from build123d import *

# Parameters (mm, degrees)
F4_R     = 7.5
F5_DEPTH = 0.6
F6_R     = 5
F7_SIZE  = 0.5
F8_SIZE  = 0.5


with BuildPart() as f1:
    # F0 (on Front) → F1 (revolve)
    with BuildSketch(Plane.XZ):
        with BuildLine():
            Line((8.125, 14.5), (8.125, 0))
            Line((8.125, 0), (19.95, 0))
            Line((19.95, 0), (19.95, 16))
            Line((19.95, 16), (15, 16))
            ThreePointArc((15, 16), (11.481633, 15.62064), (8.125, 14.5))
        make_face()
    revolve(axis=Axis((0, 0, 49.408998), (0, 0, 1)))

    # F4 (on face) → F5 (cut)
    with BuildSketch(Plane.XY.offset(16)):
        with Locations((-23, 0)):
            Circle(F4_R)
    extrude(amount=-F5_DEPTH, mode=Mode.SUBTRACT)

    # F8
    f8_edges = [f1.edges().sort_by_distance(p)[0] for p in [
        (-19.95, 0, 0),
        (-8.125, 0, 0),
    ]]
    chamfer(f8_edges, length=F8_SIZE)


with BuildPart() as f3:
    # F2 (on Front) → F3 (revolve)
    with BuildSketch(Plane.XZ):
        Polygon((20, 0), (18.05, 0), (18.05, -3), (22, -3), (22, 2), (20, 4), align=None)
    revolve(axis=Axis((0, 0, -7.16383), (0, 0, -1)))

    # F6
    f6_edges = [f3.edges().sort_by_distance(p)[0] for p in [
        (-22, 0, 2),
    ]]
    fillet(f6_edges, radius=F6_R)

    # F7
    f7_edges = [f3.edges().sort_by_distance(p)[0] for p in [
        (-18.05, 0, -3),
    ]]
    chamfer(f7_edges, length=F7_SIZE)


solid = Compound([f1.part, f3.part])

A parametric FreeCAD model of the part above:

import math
import FreeCAD as App
import Part
import Sketcher

V = App.Vector
Q = App.Units.Quantity


def edges_at(feature, points):
    """Names of the edges that pass closest to the given points."""
    edges = feature.Shape.Edges
    near = lambda p: min(range(len(edges)), key=lambda i: edges[i].distToShape(Part.Vertex(*p))[0])
    return sorted({f"Edge{near(p) + 1}" for p in points})


def add_polygon(sketch, points):
    """Adds a closed chain of lines whose ends are joined by coincident constraints."""
    first, n = sketch.GeometryCount, len(points)
    for a, b in zip(points, points[1:] + points[:1]):
        sketch.addGeometry(Part.LineSegment(App.Vector(*a, 0), App.Vector(*b, 0)), False)
    for i in range(n):
        sketch.addConstraint(Sketcher.Constraint("Coincident", first + i, 2, first + (i + 1) % n, 1))

doc = App.newDocument("Part")
params = doc.addObject("Spreadsheet::Sheet", "Params")
for row, (alias, value) in enumerate([
    ("sketch1_height", "16 mm"),
    ("sketch1_height2", "14.5 mm"),
    ("sketch1_width", "4.95 mm"),
    ("revolution_angle", "360 deg"),
    ("sketch2_diameter", "15 mm"),
    ("pocket1_length", "0.6 mm"),
    ("chamfer_size", "0.5 mm"),
    ("sketch3_height", "3 mm"),
    ("sketch3_height2", "5 mm"),
    ("sketch3_height3", "4 mm"),
    ("sketch3_width", "1.95 mm"),
    ("revolution2_angle", "360 deg"),
    ("fillet_radius", "5 mm"),
    ("chamfer2_size", "0.5 mm"),
], start=1):
    params.set(f"A{row}", alias)
    params.set(f"B{row}", "=" + value)
    params.setAlias(f"B{row}", alias)

body = doc.addObject("PartDesign::Body", "Body")

# Sketch on XZ plane
sketch1 = body.newObject("Sketcher::SketchObject", "Sketch")
sketch1.AttachmentSupport = (doc.getObject("XZ_Plane"), [""])
sketch1.MapMode = "FlatFace"
sketch1.addGeometry([
    Part.LineSegment(V(8.1, 14.5, 0), V(8.1, 0, 0)),  # 0
    Part.LineSegment(V(8.1, 0, 0), V(19.9, 0, 0)),  # 1
    Part.LineSegment(V(19.9, 0, 0), V(19.9, 16, 0)),  # 2
    Part.LineSegment(V(19.9, 16, 0), V(15, 16, 0)),  # 3
    Part.ArcOfCircle(Part.Circle(V(15, -0.5, 0), V(0, 0, 1), 16.5), math.radians(90), math.radians(115)),  # 4
], False)
sketch1.addConstraint([
    Sketcher.Constraint("Coincident", 0, 2, 1, 1),
    Sketcher.Constraint("Coincident", 1, 2, 2, 1),
    Sketcher.Constraint("Coincident", 2, 2, 3, 1),
    Sketcher.Constraint("Tangent", 3, 2, 4, 1),
    Sketcher.Constraint("Coincident", 4, 2, 0, 1),
    Sketcher.Constraint("Vertical", 0),
    Sketcher.Constraint("Horizontal", 1),
    Sketcher.Constraint("Vertical", 2),
    Sketcher.Constraint("Horizontal", 3),
    Sketcher.Constraint("PointOnObject", 0, 2, -1),
    Sketcher.Constraint("DistanceY", 2, 1, 2, 2, Q("16 mm")),
    Sketcher.Constraint("DistanceY", 0, 2, 0, 1, Q("14.5 mm")),
    Sketcher.Constraint("DistanceX", -1, 1, 3, 2, Q("15 mm")),
    Sketcher.Constraint("DistanceX", 3, 2, 3, 1, Q("4.95 mm")),
    Sketcher.Constraint("DistanceX", 1, 1, 1, 2, Q("11.825 mm")),
])
sketch1.setExpression("Constraints[10]", "Params.sketch1_height")
sketch1.setExpression("Constraints[11]", "Params.sketch1_height2")
sketch1.setExpression("Constraints[13]", "Params.sketch1_width")
revolution = body.newObject("PartDesign::Revolution", "Revolution")
revolution.Profile = sketch1
revolution.ReferenceAxis = (sketch1, ["V_Axis"])
revolution.setExpression("Angle", "Params.revolution_angle")

# Sketch on XY plane
sketch2 = body.newObject("Sketcher::SketchObject", "Sketch001")
sketch2.AttachmentSupport = (doc.getObject("XY_Plane"), [""])
sketch2.MapMode = "FlatFace"
sketch2.AttachmentOffset = App.Placement(V(0, 0, 16), App.Rotation())
sketch2.addGeometry(Part.Circle(V(-23, 0, 0), V(0, 0, 1), 8), False)
sketch2.addConstraint([
    Sketcher.Constraint("PointOnObject", 0, 3, -1),
    Sketcher.Constraint("Diameter", 0, Q("15 mm")),
    Sketcher.Constraint("DistanceX", 0, 3, -1, 1, Q("23 mm")),
])
sketch2.setExpression("Constraints[1]", "Params.sketch2_diameter")
pocket1 = body.newObject("PartDesign::Pocket", "Pocket")
pocket1.Profile = sketch2
pocket1.setExpression("Length", "Params.pocket1_length")
doc.recompute()

chamfer = body.newObject("PartDesign::Chamfer", "Chamfer")
chamfer.Base = (pocket1, edges_at(pocket1, [(-19.95, 0, 0), (-8.125, 0, 0)]))
chamfer.setExpression("Size", "Params.chamfer_size")
body2 = doc.addObject("PartDesign::Body", "Body001")

# Sketch on XZ plane
sketch3 = body2.newObject("Sketcher::SketchObject", "Sketch002")
sketch3.AttachmentSupport = (doc.getObject("XZ_Plane001"), [""])
sketch3.MapMode = "FlatFace"
add_polygon(sketch3, [(20, 0), (18.1, 0), (18.1, -3), (22, -3), (22, 2), (20, 4)])  # lines 0-5
sketch3.addConstraint([
    Sketcher.Constraint("Horizontal", 0),
    Sketcher.Constraint("Vertical", 1),
    Sketcher.Constraint("Horizontal", 2),
    Sketcher.Constraint("Vertical", 3),
    Sketcher.Constraint("Vertical", 5),
    Sketcher.Constraint("PointOnObject", 0, 2, -1),
    Sketcher.Constraint("DistanceY", 1, 2, 1, 1, Q("3 mm")),
    Sketcher.Constraint("DistanceY", 3, 1, 3, 2, Q("5 mm")),
    Sketcher.Constraint("DistanceY", 5, 2, 5, 1, Q("4 mm")),
    Sketcher.Constraint("Angle", 4, Q("135 deg")),
    Sketcher.Constraint("DistanceX", -1, 1, 2, 2, Q("22 mm")),
    Sketcher.Constraint("DistanceX", 0, 2, 0, 1, Q("1.95 mm")),
])
sketch3.setExpression("Constraints[12]", "Params.sketch3_height")
sketch3.setExpression("Constraints[13]", "Params.sketch3_height2")
sketch3.setExpression("Constraints[14]", "Params.sketch3_height3")
sketch3.setExpression("Constraints[17]", "Params.sketch3_width")
revolution2 = body2.newObject("PartDesign::Revolution", "Revolution001")
revolution2.Profile = sketch3
revolution2.ReferenceAxis = (sketch3, ["V_Axis"])
revolution2.setExpression("Angle", "Params.revolution2_angle")
doc.recompute()

fillet = body2.newObject("PartDesign::Fillet", "Fillet")
fillet.Base = (revolution2, edges_at(revolution2, [(-22, 0, 2)]))
fillet.setExpression("Radius", "Params.fillet_radius")
doc.recompute()

chamfer2 = body2.newObject("PartDesign::Chamfer", "Chamfer001")
chamfer2.Base = (fillet, edges_at(fillet, [(-18.05, 0, -3)]))
chamfer2.setExpression("Size", "Params.chamfer2_size")

doc.recompute()
